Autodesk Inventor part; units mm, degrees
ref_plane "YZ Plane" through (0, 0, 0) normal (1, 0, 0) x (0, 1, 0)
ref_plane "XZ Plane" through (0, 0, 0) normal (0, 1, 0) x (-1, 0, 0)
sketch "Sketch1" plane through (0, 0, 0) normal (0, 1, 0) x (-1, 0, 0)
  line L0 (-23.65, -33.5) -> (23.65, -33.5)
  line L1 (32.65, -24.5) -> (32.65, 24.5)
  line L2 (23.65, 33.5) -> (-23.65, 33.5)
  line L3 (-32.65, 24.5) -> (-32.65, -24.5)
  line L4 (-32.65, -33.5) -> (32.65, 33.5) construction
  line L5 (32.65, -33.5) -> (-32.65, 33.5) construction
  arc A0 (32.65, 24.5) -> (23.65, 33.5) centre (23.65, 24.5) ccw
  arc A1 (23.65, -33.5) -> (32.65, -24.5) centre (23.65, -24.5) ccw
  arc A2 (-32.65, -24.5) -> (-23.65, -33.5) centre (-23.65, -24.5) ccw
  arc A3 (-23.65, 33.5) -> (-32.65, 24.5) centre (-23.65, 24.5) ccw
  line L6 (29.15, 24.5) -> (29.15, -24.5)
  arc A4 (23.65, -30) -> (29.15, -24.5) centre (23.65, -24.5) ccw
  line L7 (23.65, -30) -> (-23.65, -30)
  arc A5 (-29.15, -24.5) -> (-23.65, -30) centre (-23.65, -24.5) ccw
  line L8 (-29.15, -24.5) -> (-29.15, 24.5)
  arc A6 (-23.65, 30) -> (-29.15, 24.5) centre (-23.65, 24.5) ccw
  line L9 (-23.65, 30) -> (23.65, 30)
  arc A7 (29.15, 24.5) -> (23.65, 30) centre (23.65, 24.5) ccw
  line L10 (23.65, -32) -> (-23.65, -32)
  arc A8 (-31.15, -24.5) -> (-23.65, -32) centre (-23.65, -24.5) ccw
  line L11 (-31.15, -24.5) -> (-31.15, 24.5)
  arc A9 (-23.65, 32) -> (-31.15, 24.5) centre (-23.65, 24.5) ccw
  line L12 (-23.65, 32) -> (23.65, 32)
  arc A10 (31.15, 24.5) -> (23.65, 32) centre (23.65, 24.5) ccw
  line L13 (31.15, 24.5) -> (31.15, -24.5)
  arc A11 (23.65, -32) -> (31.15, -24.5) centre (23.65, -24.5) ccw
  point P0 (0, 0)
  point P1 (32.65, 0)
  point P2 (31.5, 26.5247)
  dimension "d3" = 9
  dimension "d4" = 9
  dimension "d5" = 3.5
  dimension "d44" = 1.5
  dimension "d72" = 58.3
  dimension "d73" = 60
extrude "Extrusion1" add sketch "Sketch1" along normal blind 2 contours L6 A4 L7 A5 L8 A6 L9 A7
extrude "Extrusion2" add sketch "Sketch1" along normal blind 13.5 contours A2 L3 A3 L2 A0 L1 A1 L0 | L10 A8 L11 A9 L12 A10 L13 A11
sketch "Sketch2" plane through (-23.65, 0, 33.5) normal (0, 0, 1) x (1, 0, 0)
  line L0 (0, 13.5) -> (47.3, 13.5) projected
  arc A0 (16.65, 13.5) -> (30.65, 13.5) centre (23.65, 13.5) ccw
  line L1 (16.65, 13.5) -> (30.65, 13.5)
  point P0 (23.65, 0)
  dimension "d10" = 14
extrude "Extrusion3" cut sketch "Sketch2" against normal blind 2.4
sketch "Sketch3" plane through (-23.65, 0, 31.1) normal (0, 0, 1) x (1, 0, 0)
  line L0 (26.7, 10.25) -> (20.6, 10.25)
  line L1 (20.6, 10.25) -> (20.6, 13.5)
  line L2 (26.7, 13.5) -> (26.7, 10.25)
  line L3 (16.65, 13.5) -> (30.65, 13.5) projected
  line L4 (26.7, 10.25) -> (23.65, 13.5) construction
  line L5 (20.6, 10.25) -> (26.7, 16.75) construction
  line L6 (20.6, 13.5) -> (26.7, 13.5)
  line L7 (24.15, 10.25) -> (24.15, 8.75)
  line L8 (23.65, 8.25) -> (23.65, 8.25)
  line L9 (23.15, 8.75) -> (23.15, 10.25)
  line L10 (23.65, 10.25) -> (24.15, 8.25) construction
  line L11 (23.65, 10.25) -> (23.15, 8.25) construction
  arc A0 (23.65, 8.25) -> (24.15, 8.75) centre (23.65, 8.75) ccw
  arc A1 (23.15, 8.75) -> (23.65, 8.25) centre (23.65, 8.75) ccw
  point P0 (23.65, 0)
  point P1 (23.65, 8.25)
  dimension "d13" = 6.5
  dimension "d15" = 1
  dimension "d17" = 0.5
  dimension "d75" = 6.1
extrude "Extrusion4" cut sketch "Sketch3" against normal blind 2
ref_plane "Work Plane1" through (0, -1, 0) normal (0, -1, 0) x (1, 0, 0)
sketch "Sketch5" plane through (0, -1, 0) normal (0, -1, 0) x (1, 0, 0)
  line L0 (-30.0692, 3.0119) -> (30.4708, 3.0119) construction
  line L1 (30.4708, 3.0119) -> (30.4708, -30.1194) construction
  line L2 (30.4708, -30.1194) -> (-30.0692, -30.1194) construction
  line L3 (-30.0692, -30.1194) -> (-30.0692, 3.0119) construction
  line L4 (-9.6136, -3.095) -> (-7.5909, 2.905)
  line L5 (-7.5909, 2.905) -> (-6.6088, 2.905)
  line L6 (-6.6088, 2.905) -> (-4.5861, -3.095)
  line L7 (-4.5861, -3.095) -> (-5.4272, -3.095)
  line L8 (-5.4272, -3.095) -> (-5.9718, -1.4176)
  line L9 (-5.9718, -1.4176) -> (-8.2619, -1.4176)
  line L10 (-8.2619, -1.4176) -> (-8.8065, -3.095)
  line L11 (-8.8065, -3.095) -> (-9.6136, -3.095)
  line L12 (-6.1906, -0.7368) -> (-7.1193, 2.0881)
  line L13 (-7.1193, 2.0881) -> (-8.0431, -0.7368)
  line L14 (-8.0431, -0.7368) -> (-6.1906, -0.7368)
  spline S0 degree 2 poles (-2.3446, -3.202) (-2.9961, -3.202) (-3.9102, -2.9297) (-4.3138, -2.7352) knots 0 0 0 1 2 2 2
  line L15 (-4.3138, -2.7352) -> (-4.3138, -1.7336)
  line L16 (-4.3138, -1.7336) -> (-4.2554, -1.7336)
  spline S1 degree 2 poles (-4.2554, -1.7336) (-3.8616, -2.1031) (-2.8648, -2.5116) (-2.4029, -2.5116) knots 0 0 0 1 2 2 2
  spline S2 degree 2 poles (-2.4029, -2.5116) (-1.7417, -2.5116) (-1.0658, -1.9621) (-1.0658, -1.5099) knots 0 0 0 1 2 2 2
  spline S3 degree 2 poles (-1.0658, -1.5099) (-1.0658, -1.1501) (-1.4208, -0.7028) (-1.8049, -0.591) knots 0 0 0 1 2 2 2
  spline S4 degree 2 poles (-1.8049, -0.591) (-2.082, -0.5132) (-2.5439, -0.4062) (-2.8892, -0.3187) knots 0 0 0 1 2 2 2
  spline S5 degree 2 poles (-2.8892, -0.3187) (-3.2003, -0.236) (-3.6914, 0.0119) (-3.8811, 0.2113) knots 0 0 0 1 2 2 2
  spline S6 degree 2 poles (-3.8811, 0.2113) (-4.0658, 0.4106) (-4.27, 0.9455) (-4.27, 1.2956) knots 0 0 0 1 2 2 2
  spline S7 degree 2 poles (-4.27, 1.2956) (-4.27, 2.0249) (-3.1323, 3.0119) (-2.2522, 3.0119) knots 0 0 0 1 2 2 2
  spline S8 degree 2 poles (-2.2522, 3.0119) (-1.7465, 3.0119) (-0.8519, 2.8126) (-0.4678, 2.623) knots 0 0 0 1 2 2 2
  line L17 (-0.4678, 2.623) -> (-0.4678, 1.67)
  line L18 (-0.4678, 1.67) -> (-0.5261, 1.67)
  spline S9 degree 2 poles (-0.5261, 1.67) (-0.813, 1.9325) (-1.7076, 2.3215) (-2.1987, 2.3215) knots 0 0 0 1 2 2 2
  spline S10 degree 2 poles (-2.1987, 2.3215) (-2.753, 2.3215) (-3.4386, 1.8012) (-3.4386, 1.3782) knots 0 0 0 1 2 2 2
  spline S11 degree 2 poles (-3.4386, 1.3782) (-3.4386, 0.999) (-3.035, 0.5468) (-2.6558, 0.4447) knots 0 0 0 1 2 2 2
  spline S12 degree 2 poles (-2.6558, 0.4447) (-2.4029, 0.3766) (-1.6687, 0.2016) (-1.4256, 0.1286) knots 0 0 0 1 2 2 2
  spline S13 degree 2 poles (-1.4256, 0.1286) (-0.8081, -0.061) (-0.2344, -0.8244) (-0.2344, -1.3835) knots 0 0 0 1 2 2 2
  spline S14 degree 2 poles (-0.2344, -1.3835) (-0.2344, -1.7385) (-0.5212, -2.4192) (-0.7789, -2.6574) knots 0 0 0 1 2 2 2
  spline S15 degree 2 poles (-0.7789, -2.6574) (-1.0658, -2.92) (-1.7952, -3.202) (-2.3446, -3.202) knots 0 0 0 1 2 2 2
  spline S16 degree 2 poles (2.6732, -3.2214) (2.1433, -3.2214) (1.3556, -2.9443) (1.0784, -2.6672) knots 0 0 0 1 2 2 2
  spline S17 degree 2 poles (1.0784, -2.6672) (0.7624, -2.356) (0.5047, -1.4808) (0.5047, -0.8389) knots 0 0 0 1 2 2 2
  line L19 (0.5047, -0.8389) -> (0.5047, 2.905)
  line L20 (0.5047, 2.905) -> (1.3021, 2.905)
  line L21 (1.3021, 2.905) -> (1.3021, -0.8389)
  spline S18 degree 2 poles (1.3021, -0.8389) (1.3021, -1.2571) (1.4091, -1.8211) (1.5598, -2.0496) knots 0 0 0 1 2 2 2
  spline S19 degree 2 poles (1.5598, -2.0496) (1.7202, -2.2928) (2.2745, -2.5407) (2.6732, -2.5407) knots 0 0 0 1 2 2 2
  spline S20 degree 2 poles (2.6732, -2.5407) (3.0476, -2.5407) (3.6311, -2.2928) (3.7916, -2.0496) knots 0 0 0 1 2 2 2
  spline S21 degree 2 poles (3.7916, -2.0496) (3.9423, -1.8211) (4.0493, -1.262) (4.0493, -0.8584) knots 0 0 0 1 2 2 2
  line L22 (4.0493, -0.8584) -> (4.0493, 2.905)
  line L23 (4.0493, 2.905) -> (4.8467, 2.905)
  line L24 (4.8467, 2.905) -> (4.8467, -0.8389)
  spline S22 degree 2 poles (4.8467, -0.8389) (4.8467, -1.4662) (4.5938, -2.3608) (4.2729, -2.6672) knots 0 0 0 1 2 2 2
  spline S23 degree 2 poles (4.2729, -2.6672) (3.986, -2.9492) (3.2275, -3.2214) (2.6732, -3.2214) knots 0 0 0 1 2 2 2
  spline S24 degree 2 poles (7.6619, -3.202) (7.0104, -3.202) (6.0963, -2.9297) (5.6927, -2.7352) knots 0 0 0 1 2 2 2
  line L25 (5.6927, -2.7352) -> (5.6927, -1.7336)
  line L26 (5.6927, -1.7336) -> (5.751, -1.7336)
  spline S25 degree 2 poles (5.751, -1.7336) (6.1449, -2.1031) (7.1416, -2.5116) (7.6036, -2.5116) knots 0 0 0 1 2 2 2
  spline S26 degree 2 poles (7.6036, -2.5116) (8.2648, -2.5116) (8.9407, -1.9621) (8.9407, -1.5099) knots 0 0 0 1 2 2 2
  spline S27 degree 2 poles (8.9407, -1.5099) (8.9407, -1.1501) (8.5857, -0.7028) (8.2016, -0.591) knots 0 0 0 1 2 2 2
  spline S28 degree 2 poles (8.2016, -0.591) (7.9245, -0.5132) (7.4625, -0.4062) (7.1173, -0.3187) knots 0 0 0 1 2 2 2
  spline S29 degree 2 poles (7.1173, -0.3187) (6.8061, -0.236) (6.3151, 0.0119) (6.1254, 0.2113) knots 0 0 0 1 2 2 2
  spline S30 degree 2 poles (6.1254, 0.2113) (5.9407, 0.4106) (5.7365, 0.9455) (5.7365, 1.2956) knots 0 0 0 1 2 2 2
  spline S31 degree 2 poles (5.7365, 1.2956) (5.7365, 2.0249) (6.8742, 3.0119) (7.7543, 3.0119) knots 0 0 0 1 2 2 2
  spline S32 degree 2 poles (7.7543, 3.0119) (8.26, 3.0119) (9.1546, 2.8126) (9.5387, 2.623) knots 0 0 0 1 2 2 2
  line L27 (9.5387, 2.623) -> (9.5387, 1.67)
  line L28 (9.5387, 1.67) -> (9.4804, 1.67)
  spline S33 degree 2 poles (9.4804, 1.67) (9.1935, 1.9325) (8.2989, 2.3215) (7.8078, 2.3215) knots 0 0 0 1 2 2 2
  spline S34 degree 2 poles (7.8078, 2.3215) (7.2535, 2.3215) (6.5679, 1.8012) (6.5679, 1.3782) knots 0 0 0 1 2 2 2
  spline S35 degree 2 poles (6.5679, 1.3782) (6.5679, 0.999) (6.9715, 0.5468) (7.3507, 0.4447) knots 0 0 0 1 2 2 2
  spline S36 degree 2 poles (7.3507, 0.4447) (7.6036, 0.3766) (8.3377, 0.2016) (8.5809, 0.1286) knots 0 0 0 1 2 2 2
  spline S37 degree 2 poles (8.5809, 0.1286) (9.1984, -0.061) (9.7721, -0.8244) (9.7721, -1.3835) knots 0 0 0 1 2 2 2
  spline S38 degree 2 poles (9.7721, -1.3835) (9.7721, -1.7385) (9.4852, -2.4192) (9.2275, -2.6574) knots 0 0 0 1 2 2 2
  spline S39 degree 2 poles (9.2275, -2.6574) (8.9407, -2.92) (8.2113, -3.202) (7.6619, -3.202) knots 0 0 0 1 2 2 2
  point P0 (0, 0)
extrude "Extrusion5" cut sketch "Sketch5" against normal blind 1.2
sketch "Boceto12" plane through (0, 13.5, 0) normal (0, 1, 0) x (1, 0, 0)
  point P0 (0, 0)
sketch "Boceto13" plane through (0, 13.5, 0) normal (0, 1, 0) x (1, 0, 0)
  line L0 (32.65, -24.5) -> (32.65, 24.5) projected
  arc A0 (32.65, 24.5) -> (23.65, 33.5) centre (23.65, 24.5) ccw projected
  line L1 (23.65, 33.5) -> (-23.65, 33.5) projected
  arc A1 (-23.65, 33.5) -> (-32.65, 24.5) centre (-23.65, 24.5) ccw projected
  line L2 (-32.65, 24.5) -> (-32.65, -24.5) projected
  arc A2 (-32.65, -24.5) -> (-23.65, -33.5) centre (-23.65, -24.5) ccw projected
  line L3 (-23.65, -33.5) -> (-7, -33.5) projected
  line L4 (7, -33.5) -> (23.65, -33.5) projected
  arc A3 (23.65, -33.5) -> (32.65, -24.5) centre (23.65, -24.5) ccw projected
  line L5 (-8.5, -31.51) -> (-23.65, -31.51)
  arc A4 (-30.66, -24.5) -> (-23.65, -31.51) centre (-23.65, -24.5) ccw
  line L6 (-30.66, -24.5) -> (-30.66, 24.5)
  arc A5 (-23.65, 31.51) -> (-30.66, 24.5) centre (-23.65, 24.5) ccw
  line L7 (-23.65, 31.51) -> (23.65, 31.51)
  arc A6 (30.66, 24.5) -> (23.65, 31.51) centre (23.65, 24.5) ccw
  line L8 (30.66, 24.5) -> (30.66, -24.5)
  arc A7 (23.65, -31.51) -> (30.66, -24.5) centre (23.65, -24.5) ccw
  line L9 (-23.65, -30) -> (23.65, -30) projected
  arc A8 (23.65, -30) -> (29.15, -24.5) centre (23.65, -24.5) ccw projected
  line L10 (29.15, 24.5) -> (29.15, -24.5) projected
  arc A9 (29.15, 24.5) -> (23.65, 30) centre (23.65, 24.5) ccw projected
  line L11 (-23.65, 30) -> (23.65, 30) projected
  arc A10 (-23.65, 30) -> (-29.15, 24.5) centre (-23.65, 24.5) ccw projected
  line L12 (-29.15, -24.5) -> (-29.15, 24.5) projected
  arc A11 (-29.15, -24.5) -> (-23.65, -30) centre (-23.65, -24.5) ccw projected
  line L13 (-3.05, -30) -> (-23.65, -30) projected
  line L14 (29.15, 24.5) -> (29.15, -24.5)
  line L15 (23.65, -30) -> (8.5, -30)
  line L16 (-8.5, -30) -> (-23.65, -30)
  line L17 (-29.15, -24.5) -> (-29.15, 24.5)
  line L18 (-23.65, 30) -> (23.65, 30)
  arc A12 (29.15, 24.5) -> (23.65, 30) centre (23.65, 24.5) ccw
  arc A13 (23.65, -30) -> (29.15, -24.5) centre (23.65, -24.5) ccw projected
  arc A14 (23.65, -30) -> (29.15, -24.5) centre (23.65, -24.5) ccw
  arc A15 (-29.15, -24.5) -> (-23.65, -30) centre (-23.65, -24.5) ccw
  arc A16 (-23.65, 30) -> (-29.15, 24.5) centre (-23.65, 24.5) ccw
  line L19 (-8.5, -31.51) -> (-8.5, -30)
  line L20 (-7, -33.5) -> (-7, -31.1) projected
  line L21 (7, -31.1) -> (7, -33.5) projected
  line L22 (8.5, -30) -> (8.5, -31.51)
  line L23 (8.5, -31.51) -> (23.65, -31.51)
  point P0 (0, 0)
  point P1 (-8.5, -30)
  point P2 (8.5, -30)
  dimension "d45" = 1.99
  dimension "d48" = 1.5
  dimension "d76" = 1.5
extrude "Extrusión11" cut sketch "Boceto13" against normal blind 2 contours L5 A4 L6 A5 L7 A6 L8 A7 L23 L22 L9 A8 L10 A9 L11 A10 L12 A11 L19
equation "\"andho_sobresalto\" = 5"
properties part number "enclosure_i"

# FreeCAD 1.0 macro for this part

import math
import FreeCAD as App
import Part
import Sketcher
from FreeCAD import Vector
Q = App.Units.Quantity


def add_polygon(sketch, points):
    """Adds a closed chain of lines whose ends are joined by coincident constraints."""
    first, n = sketch.GeometryCount, len(points)
    for a, b in zip(points, points[1:] + points[:1]):
        sketch.addGeometry(Part.LineSegment(App.Vector(*a, 0), App.Vector(*b, 0)), False)
    for i in range(n):
        sketch.addConstraint(Sketcher.Constraint("Coincident", first + i, 2, first + (i + 1) % n, 1))

doc = App.newDocument("Part")
params = doc.addObject("Spreadsheet::Sheet", "Params")
for row, (alias, value) in enumerate([
    ("sketch1_radius", "5.5 mm"),
    ("sketch1_height", "49 mm"),
    ("sketch1_width", "47.3 mm"),
    ("pad1_length", "2 mm"),
    ("sketch2_radius", "9 mm"),
    ("sketch2_radius2", "5.5 mm"),
    ("sketch2_height", "49 mm"),
    ("sketch2_width", "47.3 mm"),
    ("pad2_length", "13.5 mm"),
    ("sketch3_radius", "7 mm"),
    ("pocket1_length", "2.4 mm"),
    ("sketch4_radius", "0.5 mm"),
    ("sketch4_width", "6.1 mm"),
    ("sketch4_height", "1.5 mm"),
    ("sketch4_height2", "3.25 mm"),
    ("pocket2_length", "2 mm"),
    ("sketch5_width", "2.29 mm"),
    ("pocket3_length", "1.2 mm"),
    ("sketch6_radius", "5.5 mm"),
    ("sketch6_height", "49 mm"),
    ("sketch6_radius2", "7.01 mm"),
    ("sketch6_width", "47.3 mm"),
    ("pocket4_length", "2 mm"),
], start=1):
    params.set(f"A{row}", alias)
    params.set(f"B{row}", "=" + value)
    params.setAlias(f"B{row}", alias)

body = doc.addObject("PartDesign::Body", "Body")

sketch1 = body.newObject("Sketcher::SketchObject", "Sketch")
sketch1.AttachmentSupport = (doc.getObject("XZ_Plane"), [""])
sketch1.MapMode = "FlatFace"
sketch1.addGeometry([
    Part.LineSegment(Vector(-29.15, -24.5, 0), Vector(-29.15, 24.5, 0)),
    Part.ArcOfCircle(Part.Circle(Vector(-23.65, 24.5, 0), Vector(0, 0, 1), 5.5), math.radians(90), math.radians(180)),
    Part.LineSegment(Vector(-23.65, 30, 0), Vector(23.65, 30, 0)),
    Part.ArcOfCircle(Part.Circle(Vector(23.65, 24.5, 0), Vector(0, 0, 1), 5.5), math.radians(0), math.radians(90)),
    Part.LineSegment(Vector(29.15, 24.5, 0), Vector(29.15, -24.5, 0)),
    Part.ArcOfCircle(Part.Circle(Vector(23.65, -24.5, 0), Vector(0, 0, 1), 5.5), math.radians(-90), math.radians(0)),
    Part.LineSegment(Vector(23.65, -30, 0), Vector(-23.65, -30, 0)),
    Part.ArcOfCircle(Part.Circle(Vector(-23.65, -24.5, 0), Vector(0, 0, 1), 5.5), math.radians(180), math.radians(270)),
], False)
sketch1.addConstraint([
    Sketcher.Constraint("Tangent", 0, 2, 1, 2),
    Sketcher.Constraint("Tangent", 1, 1, 2, 1),
    Sketcher.Constraint("Tangent", 2, 2, 3, 2),
    Sketcher.Constraint("Tangent", 3, 1, 4, 1),
    Sketcher.Constraint("Tangent", 4, 2, 5, 2),
    Sketcher.Constraint("Tangent", 5, 1, 6, 1),
    Sketcher.Constraint("Tangent", 6, 2, 7, 2),
    Sketcher.Constraint("Tangent", 7, 1, 0, 1),
    Sketcher.Constraint("Vertical", 0),
    Sketcher.Constraint("Horizontal", 2),
    Sketcher.Constraint("Vertical", 4),
    Sketcher.Constraint("Horizontal", 6),
    Sketcher.Constraint("Equal", 1, 3),
    Sketcher.Constraint("Equal", 3, 5),
    Sketcher.Constraint("Equal", 5, 7),
    Sketcher.Constraint("Symmetric", 1, 3, 5, 3, -1, 1),
    Sketcher.Constraint("Radius", 1, Q("5.5 mm")),
    Sketcher.Constraint("DistanceY", 0, 1, 0, 2, Q("49 mm")),
    Sketcher.Constraint("DistanceX", 2, 1, 2, 2, Q("47.3 mm")),
])
sketch1.setExpression("Constraints[16]", "Params.sketch1_radius")
sketch1.setExpression("Constraints[17]", "Params.sketch1_height")
sketch1.setExpression("Constraints[18]", "Params.sketch1_width")
pad1 = body.newObject("PartDesign::Pad", "Pad")
pad1.Profile = sketch1
pad1.setExpression("Length", "Params.pad1_length")
pad1.Reversed = True

sketch2 = body.newObject("Sketcher::SketchObject", "Sketch001")
sketch2.AttachmentSupport = (doc.getObject("XZ_Plane"), [""])
sketch2.MapMode = "FlatFace"
sketch2.addGeometry([
    Part.ArcOfCircle(Part.Circle(Vector(23.65, -24.5, 0), Vector(0, 0, 1), 9), math.radians(-90), math.radians(0)),
    Part.LineSegment(Vector(23.65, -33.5, 0), Vector(-23.65, -33.5, 0)),
    Part.ArcOfCircle(Part.Circle(Vector(-23.65, -24.5, 0), Vector(0, 0, 1), 9), math.radians(180), math.radians(270)),
    Part.LineSegment(Vector(-32.65, -24.5, 0), Vector(-32.65, 24.5, 0)),
    Part.ArcOfCircle(Part.Circle(Vector(-23.65, 24.5, 0), Vector(0, 0, 1), 9), math.radians(90), math.radians(180)),
    Part.LineSegment(Vector(-23.65, 33.5, 0), Vector(23.65, 33.5, 0)),
    Part.ArcOfCircle(Part.Circle(Vector(23.65, 24.5, 0), Vector(0, 0, 1), 9), math.radians(0), math.radians(90)),
    Part.LineSegment(Vector(32.65, 24.5, 0), Vector(32.65, -24.5, 0)),
    Part.ArcOfCircle(Part.Circle(Vector(-23.65, 24.5, 0), Vector(0, 0, 1), 5.5), math.radians(90), math.radians(180)),
    Part.LineSegment(Vector(-29.15, 24.5, 0), Vector(-29.15, -24.5, 0)),
    Part.ArcOfCircle(Part.Circle(Vector(-23.65, -24.5, 0), Vector(0, 0, 1), 5.5), math.radians(180), math.radians(270)),
    Part.LineSegment(Vector(-23.65, -30, 0), Vector(23.65, -30, 0)),
    Part.ArcOfCircle(Part.Circle(Vector(23.65, -24.5, 0), Vector(0, 0, 1), 5.5), math.radians(-90), math.radians(0)),
    Part.LineSegment(Vector(29.15, -24.5, 0), Vector(29.15, 24.5, 0)),
    Part.ArcOfCircle(Part.Circle(Vector(23.65, 24.5, 0), Vector(0, 0, 1), 5.5), math.radians(0), math.radians(90)),
    Part.LineSegment(Vector(23.65, 30, 0), Vector(-23.65, 30, 0)),
], False)
sketch2.addConstraint([
    Sketcher.Constraint("Tangent", 0, 1, 1, 1),
    Sketcher.Constraint("Tangent", 1, 2, 2, 2),
    Sketcher.Constraint("Tangent", 2, 1, 3, 1),
    Sketcher.Constraint("Tangent", 3, 2, 4, 2),
    Sketcher.Constraint("Tangent", 4, 1, 5, 1),
    Sketcher.Constraint("Tangent", 5, 2, 6, 2),
    Sketcher.Constraint("Tangent", 6, 1, 7, 1),
    Sketcher.Constraint("Tangent", 7, 2, 0, 2),
    Sketcher.Constraint("Tangent", 8, 2, 9, 1),
    Sketcher.Constraint("Tangent", 9, 2, 10, 1),
    Sketcher.Constraint("Tangent", 10, 2, 11, 1),
    Sketcher.Constraint("Tangent", 11, 2, 12, 1),
    Sketcher.Constraint("Tangent", 12, 2, 13, 1),
    Sketcher.Constraint("Tangent", 13, 2, 14, 1),
    Sketcher.Constraint("Tangent", 14, 2, 15, 1),
    Sketcher.Constraint("Tangent", 15, 2, 8, 1),
    Sketcher.Constraint("Horizontal", 1),
    Sketcher.Constraint("Vertical", 3),
    Sketcher.Constraint("Horizontal", 5),
    Sketcher.Constraint("Vertical", 7),
    Sketcher.Constraint("Vertical", 9),
    Sketcher.Constraint("Horizontal", 11),
    Sketcher.Constraint("Vertical", 13),
    Sketcher.Constraint("Horizontal", 15),
    Sketcher.Constraint("Coincident", 8, 3, 4, 3),
    Sketcher.Constraint("Coincident", 10, 3, 2, 3),
    Sketcher.Constraint("Coincident", 12, 3, 0, 3),
    Sketcher.Constraint("Equal", 0, 2),
    Sketcher.Constraint("Equal", 2, 4),
    Sketcher.Constraint("Equal", 4, 6),
    Sketcher.Constraint("Equal", 12, 14),
    Sketcher.Constraint("Symmetric", 0, 3, 4, 3, -1, 1),
    Sketcher.Constraint("Radius", 0, Q("9 mm")),
    Sketcher.Constraint("Radius", 8, Q("5.5 mm")),
    Sketcher.Constraint("DistanceY", 3, 1, 3, 2, Q("49 mm")),
    Sketcher.Constraint("DistanceX", 1, 2, 1, 1, Q("47.3 mm")),
])
sketch2.setExpression("Constraints[32]", "Params.sketch2_radius")
sketch2.setExpression("Constraints[33]", "Params.sketch2_radius2")
sketch2.setExpression("Constraints[34]", "Params.sketch2_height")
sketch2.setExpression("Constraints[35]", "Params.sketch2_width")
pad2 = body.newObject("PartDesign::Pad", "Pad001")
pad2.Profile = sketch2
pad2.setExpression("Length", "Params.pad2_length")
pad2.Reversed = True

sketch3 = body.newObject("Sketcher::SketchObject", "Sketch002")
sketch3.AttachmentSupport = (doc.getObject("XY_Plane"), [""])
sketch3.MapMode = "FlatFace"
sketch3.AttachmentOffset = App.Placement(Vector(0, 0, 33.5), App.Rotation())
sketch3.addGeometry([
    Part.LineSegment(Vector(7, 13.5, 0), Vector(-7, 13.5, 0)),
    Part.ArcOfCircle(Part.Circle(Vector(0, 13.5, 0), Vector(0, 0, 1), 7), math.radians(180), math.radians(360)),
], False)
sketch3.addConstraint([
    Sketcher.Constraint("Coincident", 0, 1, 1, 2),
    Sketcher.Constraint("Coincident", 1, 1, 0, 2),
    Sketcher.Constraint("Horizontal", 0),
    Sketcher.Constraint("PointOnObject", 1, 3, -2),
    Sketcher.Constraint("Horizontal", 1, 3, 0, 1),
    Sketcher.Constraint("Radius", 1, Q("7 mm")),
    Sketcher.Constraint("DistanceY", -1, 1, 1, 3, Q("13.5 mm")),
])
sketch3.setExpression("Constraints[5]", "Params.sketch3_radius")
pocket1 = body.newObject("PartDesign::Pocket", "Pocket")
pocket1.Profile = sketch3
pocket1.setExpression("Length", "Params.pocket1_length")

sketch4 = body.newObject("Sketcher::SketchObject", "Sketch003")
sketch4.AttachmentSupport = (doc.getObject("XY_Plane"), [""])
sketch4.MapMode = "FlatFace"
sketch4.AttachmentOffset = App.Placement(Vector(0, 0, 31.1), App.Rotation())
sketch4.addGeometry([
    Part.LineSegment(Vector(0.5, 10.25, 0), Vector(3.05, 10.25, 0)),
    Part.LineSegment(Vector(3.05, 10.25, 0), Vector(3.05, 13.5, 0)),
    Part.LineSegment(Vector(3.05, 13.5, 0), Vector(-3.05, 13.5, 0)),
    Part.LineSegment(Vector(-3.05, 13.5, 0), Vector(-3.05, 10.25, 0)),
    Part.LineSegment(Vector(-3.05, 10.25, 0), Vector(-0.5, 10.25, 0)),
    Part.LineSegment(Vector(-0.5, 10.25, 0), Vector(-0.5, 8.75, 0)),
    Part.ArcOfCircle(Part.Circle(Vector(0, 8.75, 0), Vector(0, 0, 1), 0.5), math.radians(180), math.radians(360)),
    Part.LineSegment(Vector(0.5, 8.75, 0), Vector(0.5, 10.25, 0)),
], False)
sketch4.addConstraint([
    Sketcher.Constraint("Coincident", 0, 2, 1, 1),
    Sketcher.Constraint("Coincident", 1, 2, 2, 1),
    Sketcher.Constraint("Coincident", 2, 2, 3, 1),
    Sketcher.Constraint("Coincident", 3, 2, 4, 1),
    Sketcher.Constraint("Coincident", 4, 2, 5, 1),
    Sketcher.Constraint("Tangent", 5, 2, 6, 1),
    Sketcher.Constraint("Tangent", 6, 2, 7, 1),
    Sketcher.Constraint("Coincident", 7, 2, 0, 1),
    Sketcher.Constraint("Horizontal", 0),
    Sketcher.Constraint("Vertical", 1),
    Sketcher.Constraint("Horizontal", 2),
    Sketcher.Constraint("Vertical", 3),
    Sketcher.Constraint("Horizontal", 4),
    Sketcher.Constraint("Vertical", 5),
    Sketcher.Constraint("Vertical", 7),
    Sketcher.Constraint("Symmetric", 0, 2, 3, 2, -2),
    Sketcher.Constraint("PointOnObject", 6, 3, -2),
    Sketcher.Constraint("Radius", 6, Q("0.5 mm")),
    Sketcher.Constraint("DistanceX", 2, 2, 2, 1, Q("6.1 mm")),
    Sketcher.Constraint("DistanceY", 5, 2, 5, 1, Q("1.5 mm")),
    Sketcher.Constraint("DistanceY", 1, 1, 1, 2, Q("3.25 mm")),
    Sketcher.Constraint("DistanceY", -1, 1, 1, 2, Q("13.5 mm")),
])
sketch4.setExpression("Constraints[17]", "Params.sketch4_radius")
sketch4.setExpression("Constraints[18]", "Params.sketch4_width")
sketch4.setExpression("Constraints[19]", "Params.sketch4_height")
sketch4.setExpression("Constraints[20]", "Params.sketch4_height2")
pocket2 = body.newObject("PartDesign::Pocket", "Pocket001")
pocket2.Profile = sketch4
pocket2.setExpression("Length", "Params.pocket2_length")

sketch5 = body.newObject("Sketcher::SketchObject", "Sketch004")
sketch5.AttachmentSupport = (doc.getObject("XZ_Plane"), [""])
sketch5.MapMode = "FlatFace"
sketch5.AttachmentOffset = App.Placement(Vector(0, 0, 1), App.Rotation())
add_polygon(sketch5, [(-7.5909, 2.905), (-9.6136, -3.095), (-8.8065, -3.095), (-8.2619, -1.4176), (-5.9718, -1.4176), (-5.4272, -3.095), (-4.5861, -3.095), (-6.6088, 2.905)])
add_polygon(sketch5, [(-7.1193, 2.0881), (-6.1906, -0.7368), (-8.0431, -0.7368)])
sketch5.addGeometry(Part.BSplineCurve([Vector(-2.3446, -3.202, 0), Vector(-2.9961, -3.202, 0), Vector(-3.9102, -2.9297, 0), Vector(-4.3138, -2.7352, 0)], [3, 1, 3], [0, 1, 2], False, 2, [1, 1, 1, 1], False), False)
sketch5.addGeometry(Part.BSplineCurve([Vector(-0.7789, -2.6574, 0), Vector(-1.0658, -2.92, 0), Vector(-1.7952, -3.202, 0), Vector(-2.3446, -3.202, 0)], [3, 1, 3], [0, 1, 2], False, 2, [1, 1, 1, 1], False), False)
sketch5.addGeometry(Part.BSplineCurve([Vector(-0.2344, -1.3835, 0), Vector(-0.2344, -1.7385, 0), Vector(-0.5212, -2.4192, 0), Vector(-0.7789, -2.6574, 0)], [3, 1, 3], [0, 1, 2], False, 2, [1, 1, 1, 1], False), False)
sketch5.addGeometry(Part.BSplineCurve([Vector(-1.4256, 0.1286, 0), Vector(-0.8081, -0.061, 0), Vector(-0.2344, -0.8244, 0), Vector(-0.2344, -1.3835, 0)], [3, 1, 3], [0, 1, 2], False, 2, [1, 1, 1, 1], False), False)
sketch5.addGeometry(Part.BSplineCurve([Vector(-2.6558, 0.4447, 0), Vector(-2.4029, 0.3766, 0), Vector(-1.6687, 0.2016, 0), Vector(-1.4256, 0.1286, 0)], [3, 1, 3], [0, 1, 2], False, 2, [1, 1, 1, 1], False), False)
sketch5.addGeometry(Part.BSplineCurve([Vector(-3.4386, 1.3782, 0), Vector(-3.4386, 0.999, 0), Vector(-3.035, 0.5468, 0), Vector(-2.6558, 0.4447, 0)], [3, 1, 3], [0, 1, 2], False, 2, [1, 1, 1, 1], False), False)
sketch5.addGeometry(Part.BSplineCurve([Vector(-2.1987, 2.3215, 0), Vector(-2.753, 2.3215, 0), Vector(-3.4386, 1.8012, 0), Vector(-3.4386, 1.3782, 0)], [3, 1, 3], [0, 1, 2], False, 2, [1, 1, 1, 1], False), False)
sketch5.addGeometry(Part.BSplineCurve([Vector(-0.5261, 1.67, 0), Vector(-0.813, 1.9325, 0), Vector(-1.7076, 2.3215, 0), Vector(-2.1987, 2.3215, 0)], [3, 1, 3], [0, 1, 2], False, 2, [1, 1, 1, 1], False), False)
sketch5.addGeometry(Part.LineSegment(Vector(-0.5261, 1.67, 0), Vector(-0.4678, 1.67, 0)), False)
sketch5.addGeometry(Part.LineSegment(Vector(-0.4678, 1.67, 0), Vector(-0.4678, 2.623, 0)), False)
sketch5.addGeometry(Part.BSplineCurve([Vector(-2.2522, 3.0119, 0), Vector(-1.7465, 3.0119, 0), Vector(-0.8519, 2.8126, 0), Vector(-0.4678, 2.623, 0)], [3, 1, 3], [0, 1, 2], False, 2, [1, 1, 1, 1], False), False)
sketch5.addGeometry(Part.BSplineCurve([Vector(-4.27, 1.2956, 0), Vector(-4.27, 2.0249, 0), Vector(-3.1323, 3.0119, 0), Vector(-2.2522, 3.0119, 0)], [3, 1, 3], [0, 1, 2], False, 2, [1, 1, 1, 1], False), False)
sketch5.addGeometry(Part.BSplineCurve([Vector(-3.8811, 0.2113, 0), Vector(-4.0658, 0.4106, 0), Vector(-4.27, 0.9455, 0), Vector(-4.27, 1.2956, 0)], [3, 1, 3], [0, 1, 2], False, 2, [1, 1, 1, 1], False), False)
sketch5.addGeometry(Part.BSplineCurve([Vector(-2.8892, -0.3187, 0), Vector(-3.2003, -0.236, 0), Vector(-3.6914, 0.0119, 0), Vector(-3.8811, 0.2113, 0)], [3, 1, 3], [0, 1, 2], False, 2, [1, 1, 1, 1], False), False)
sketch5.addGeometry(Part.BSplineCurve([Vector(-1.8049, -0.591, 0), Vector(-2.082, -0.5132, 0), Vector(-2.5439, -0.4062, 0), Vector(-2.8892, -0.3187, 0)], [3, 1, 3], [0, 1, 2], False, 2, [1, 1, 1, 1], False), False)
sketch5.addGeometry(Part.BSplineCurve([Vector(-1.0658, -1.5099, 0), Vector(-1.0658, -1.1501, 0), Vector(-1.4208, -0.7028, 0), Vector(-1.8049, -0.591, 0)], [3, 1, 3], [0, 1, 2], False, 2, [1, 1, 1, 1], False), False)
sketch5.addGeometry(Part.BSplineCurve([Vector(-2.4029, -2.5116, 0), Vector(-1.7417, -2.5116, 0), Vector(-1.0658, -1.9621, 0), Vector(-1.0658, -1.5099, 0)], [3, 1, 3], [0, 1, 2], False, 2, [1, 1, 1, 1], False), False)
sketch5.addGeometry(Part.BSplineCurve([Vector(-4.2554, -1.7336, 0), Vector(-3.8616, -2.1031, 0), Vector(-2.8648, -2.5116, 0), Vector(-2.4029, -2.5116, 0)], [3, 1, 3], [0, 1, 2], False, 2, [1, 1, 1, 1], False), False)
sketch5.addGeometry(Part.LineSegment(Vector(-4.2554, -1.7336, 0), Vector(-4.3138, -1.7336, 0)), False)
sketch5.addGeometry(Part.LineSegment(Vector(-4.3138, -1.7336, 0), Vector(-4.3138, -2.7352, 0)), False)
sketch5.addGeometry(Part.BSplineCurve([Vector(2.6732, -3.2214, 0), Vector(2.1433, -3.2214, 0), Vector(1.3556, -2.9443, 0), Vector(1.0784, -2.6672, 0)], [3, 1, 3], [0, 1, 2], False, 2, [1, 1, 1, 1], False), False)
sketch5.addGeometry(Part.BSplineCurve([Vector(4.2729, -2.6672, 0), Vector(3.986, -2.9492, 0), Vector(3.2275, -3.2214, 0), Vector(2.6732, -3.2214, 0)], [3, 1, 3], [0, 1, 2], False, 2, [1, 1, 1, 1], False), False)
sketch5.addGeometry(Part.BSplineCurve([Vector(4.8467, -0.8389, 0), Vector(4.8467, -1.4662, 0), Vector(4.5938, -2.3608, 0), Vector(4.2729, -2.6672, 0)], [3, 1, 3], [0, 1, 2], False, 2, [1, 1, 1, 1], False), False)
sketch5.addGeometry(Part.LineSegment(Vector(4.8467, -0.8389, 0), Vector(4.8467, 2.905, 0)), False)
sketch5.addGeometry(Part.LineSegment(Vector(4.8467, 2.905, 0), Vector(4.0493, 2.905, 0)), False)
sketch5.addGeometry(Part.LineSegment(Vector(4.0493, 2.905, 0), Vector(4.0493, -0.8584, 0)), False)
sketch5.addGeometry(Part.BSplineCurve([Vector(3.7916, -2.0496, 0), Vector(3.9423, -1.8211, 0), Vector(4.0493, -1.262, 0), Vector(4.0493, -0.8584, 0)], [3, 1, 3], [0, 1, 2], False, 2, [1, 1, 1, 1], False), False)
sketch5.addGeometry(Part.BSplineCurve([Vector(2.6732, -2.5407, 0), Vector(3.0476, -2.5407, 0), Vector(3.6311, -2.2928, 0), Vector(3.7916, -2.0496, 0)], [3, 1, 3], [0, 1, 2], False, 2, [1, 1, 1, 1], False), False)
sketch5.addGeometry(Part.BSplineCurve([Vector(1.5598, -2.0496, 0), Vector(1.7202, -2.2928, 0), Vector(2.2745, -2.5407, 0), Vector(2.6732, -2.5407, 0)], [3, 1, 3], [0, 1, 2], False, 2, [1, 1, 1, 1], False), False)
sketch5.addGeometry(Part.BSplineCurve([Vector(1.3021, -0.8389, 0), Vector(1.3021, -1.2571, 0), Vector(1.4091, -1.8211, 0), Vector(1.5598, -2.0496, 0)], [3, 1, 3], [0, 1, 2], False, 2, [1, 1, 1, 1], False), False)
sketch5.addGeometry(Part.LineSegment(Vector(1.3021, -0.8389, 0), Vector(1.3021, 2.905, 0)), False)
sketch5.addGeometry(Part.LineSegment(Vector(1.3021, 2.905, 0), Vector(0.5047, 2.905, 0)), False)
sketch5.addGeometry(Part.LineSegment(Vector(0.5047, 2.905, 0), Vector(0.5047, -0.8389, 0)), False)
sketch5.addGeometry(Part.BSplineCurve([Vector(1.0784, -2.6672, 0), Vector(0.7624, -2.356, 0), Vector(0.5047, -1.4808, 0), Vector(0.5047, -0.8389, 0)], [3, 1, 3], [0, 1, 2], False, 2, [1, 1, 1, 1], False), False)
sketch5.addGeometry(Part.BSplineCurve([Vector(7.6619, -3.202, 0), Vector(7.0104, -3.202, 0), Vector(6.0963, -2.9297, 0), Vector(5.6927, -2.7352, 0)], [3, 1, 3], [0, 1, 2], False, 2, [1, 1, 1, 1], False), False)
sketch5.addGeometry(Part.BSplineCurve([Vector(9.2275, -2.6574, 0), Vector(8.9407, -2.92, 0), Vector(8.2113, -3.202, 0), Vector(7.6619, -3.202, 0)], [3, 1, 3], [0, 1, 2], False, 2, [1, 1, 1, 1], False), False)
sketch5.addGeometry(Part.BSplineCurve([Vector(9.7721, -1.3835, 0), Vector(9.7721, -1.7385, 0), Vector(9.4852, -2.4192, 0), Vector(9.2275, -2.6574, 0)], [3, 1, 3], [0, 1, 2], False, 2, [1, 1, 1, 1], False), False)
sketch5.addGeometry(Part.BSplineCurve([Vector(8.5809, 0.1286, 0), Vector(9.1984, -0.061, 0), Vector(9.7721, -0.8244, 0), Vector(9.7721, -1.3835, 0)], [3, 1, 3], [0, 1, 2], False, 2, [1, 1, 1, 1], False), False)
sketch5.addGeometry(Part.BSplineCurve([Vector(7.3507, 0.4447, 0), Vector(7.6036, 0.3766, 0), Vector(8.3377, 0.2016, 0), Vector(8.5809, 0.1286, 0)], [3, 1, 3], [0, 1, 2], False, 2, [1, 1, 1, 1], False), False)
sketch5.addGeometry(Part.BSplineCurve([Vector(6.5679, 1.3782, 0), Vector(6.5679, 0.999, 0), Vector(6.9715, 0.5468, 0), Vector(7.3507, 0.4447, 0)], [3, 1, 3], [0, 1, 2], False, 2, [1, 1, 1, 1], False), False)
sketch5.addGeometry(Part.BSplineCurve([Vector(7.8078, 2.3215, 0), Vector(7.2535, 2.3215, 0), Vector(6.5679, 1.8012, 0), Vector(6.5679, 1.3782, 0)], [3, 1, 3], [0, 1, 2], False, 2, [1, 1, 1, 1], False), False)
sketch5.addGeometry(Part.BSplineCurve([Vector(9.4804, 1.67, 0), Vector(9.1935, 1.9325, 0), Vector(8.2989, 2.3215, 0), Vector(7.8078, 2.3215, 0)], [3, 1, 3], [0, 1, 2], False, 2, [1, 1, 1, 1], False), False)
sketch5.addGeometry(Part.LineSegment(Vector(9.4804, 1.67, 0), Vector(9.5387, 1.67, 0)), False)
sketch5.addGeometry(Part.LineSegment(Vector(9.5387, 1.67, 0), Vector(9.5387, 2.623, 0)), False)
sketch5.addGeometry(Part.BSplineCurve([Vector(7.7543, 3.0119, 0), Vector(8.26, 3.0119, 0), Vector(9.1546, 2.8126, 0), Vector(9.5387, 2.623, 0)], [3, 1, 3], [0, 1, 2], False, 2, [1, 1, 1, 1], False), False)
sketch5.addGeometry(Part.BSplineCurve([Vector(5.7365, 1.2956, 0), Vector(5.7365, 2.0249, 0), Vector(6.8742, 3.0119, 0), Vector(7.7543, 3.0119, 0)], [3, 1, 3], [0, 1, 2], False, 2, [1, 1, 1, 1], False), False)
sketch5.addGeometry(Part.BSplineCurve([Vector(6.1254, 0.2113, 0), Vector(5.9407, 0.4106, 0), Vector(5.7365, 0.9455, 0), Vector(5.7365, 1.2956, 0)], [3, 1, 3], [0, 1, 2], False, 2, [1, 1, 1, 1], False), False)
sketch5.addGeometry(Part.BSplineCurve([Vector(7.1173, -0.3187, 0), Vector(6.8061, -0.236, 0), Vector(6.3151, 0.0119, 0), Vector(6.1254, 0.2113, 0)], [3, 1, 3], [0, 1, 2], False, 2, [1, 1, 1, 1], False), False)
sketch5.addGeometry(Part.BSplineCurve([Vector(8.2016, -0.591, 0), Vector(7.9245, -0.5132, 0), Vector(7.4625, -0.4062, 0), Vector(7.1173, -0.3187, 0)], [3, 1, 3], [0, 1, 2], False, 2, [1, 1, 1, 1], False), False)
sketch5.addGeometry(Part.BSplineCurve([Vector(8.9407, -1.5099, 0), Vector(8.9407, -1.1501, 0), Vector(8.5857, -0.7028, 0), Vector(8.2016, -0.591, 0)], [3, 1, 3], [0, 1, 2], False, 2, [1, 1, 1, 1], False), False)
sketch5.addGeometry(Part.BSplineCurve([Vector(7.6036, -2.5116, 0), Vector(8.2648, -2.5116, 0), Vector(8.9407, -1.9621, 0), Vector(8.9407, -1.5099, 0)], [3, 1, 3], [0, 1, 2], False, 2, [1, 1, 1, 1], False), False)
sketch5.addGeometry(Part.BSplineCurve([Vector(5.751, -1.7336, 0), Vector(6.1449, -2.1031, 0), Vector(7.1416, -2.5116, 0), Vector(7.6036, -2.5116, 0)], [3, 1, 3], [0, 1, 2], False, 2, [1, 1, 1, 1], False), False)
sketch5.addGeometry(Part.LineSegment(Vector(5.751, -1.7336, 0), Vector(5.6927, -1.7336, 0)), False)
sketch5.addGeometry(Part.LineSegment(Vector(5.6927, -1.7336, 0), Vector(5.6927, -2.7352, 0)), False)
sketch5.addConstraint([
    Sketcher.Constraint("Block", 11),
    Sketcher.Constraint("Block", 12),
    Sketcher.Constraint("Block", 13),
    Sketcher.Constraint("Block", 14),
    Sketcher.Constraint("Block", 15),
    Sketcher.Constraint("Block", 16),
    Sketcher.Constraint("Block", 17),
    Sketcher.Constraint("Block", 18),
    Sketcher.Constraint("Block", 21),
    Sketcher.Constraint("Block", 22),
    Sketcher.Constraint("Block", 23),
    Sketcher.Constraint("Block", 24),
    Sketcher.Constraint("Block", 25),
    Sketcher.Constraint("Block", 26),
    Sketcher.Constraint("Block", 27),
    Sketcher.Constraint("Block", 28),
    Sketcher.Constraint("Block", 31),
    Sketcher.Constraint("Block", 32),
    Sketcher.Constraint("Block", 33),
    Sketcher.Constraint("Block", 37),
    Sketcher.Constraint("Block", 38),
    Sketcher.Constraint("Block", 39),
    Sketcher.Constraint("Block", 40),
    Sketcher.Constraint("Block", 44),
    Sketcher.Constraint("Block", 45),
    Sketcher.Constraint("Block", 46),
    Sketcher.Constraint("Block", 47),
    Sketcher.Constraint("Block", 48),
    Sketcher.Constraint("Block", 49),
    Sketcher.Constraint("Block", 50),
    Sketcher.Constraint("Block", 51),
    Sketcher.Constraint("Block", 52),
    Sketcher.Constraint("Block", 55),
    Sketcher.Constraint("Block", 56),
    Sketcher.Constraint("Block", 57),
    Sketcher.Constraint("Block", 58),
    Sketcher.Constraint("Block", 59),
    Sketcher.Constraint("Block", 60),
    Sketcher.Constraint("Block", 61),
    Sketcher.Constraint("Block", 62),
    Sketcher.Constraint("Coincident", 18, 1, 19, 1),
    Sketcher.Constraint("Coincident", 19, 2, 20, 1),
    Sketcher.Constraint("Coincident", 20, 2, 21, 2),
    Sketcher.Constraint("Coincident", 28, 1, 29, 1),
    Sketcher.Constraint("Coincident", 29, 2, 30, 1),
    Sketcher.Constraint("Coincident", 30, 2, 11, 2),
    Sketcher.Constraint("Coincident", 33, 1, 34, 1),
    Sketcher.Constraint("Coincident", 34, 2, 35, 1),
    Sketcher.Constraint("Coincident", 35, 2, 36, 1),
    Sketcher.Constraint("Coincident", 36, 2, 37, 2),
    Sketcher.Constraint("Coincident", 40, 1, 41, 1),
    Sketcher.Constraint("Coincident", 41, 2, 42, 1),
    Sketcher.Constraint("Coincident", 42, 2, 43, 1),
    Sketcher.Constraint("Coincident", 43, 2, 44, 2),
    Sketcher.Constraint("Coincident", 52, 1, 53, 1),
    Sketcher.Constraint("Coincident", 53, 2, 54, 1),
    Sketcher.Constraint("Coincident", 54, 2, 55, 2),
    Sketcher.Constraint("Coincident", 62, 1, 63, 1),
    Sketcher.Constraint("Coincident", 63, 2, 64, 1),
    Sketcher.Constraint("Coincident", 64, 2, 45, 2),
    Sketcher.Constraint("Horizontal", 1),
    Sketcher.Constraint("Horizontal", 3),
    Sketcher.Constraint("Horizontal", 5),
    Sketcher.Constraint("Horizontal", 7),
    Sketcher.Constraint("Horizontal", 9),
    Sketcher.Constraint("Horizontal", 19),
    Sketcher.Constraint("Vertical", 20),
    Sketcher.Constraint("Horizontal", 29),
    Sketcher.Constraint("Vertical", 30),
    Sketcher.Constraint("Vertical", 34),
    Sketcher.Constraint("Horizontal", 35),
    Sketcher.Constraint("Vertical", 36),
    Sketcher.Constraint("Vertical", 41),
    Sketcher.Constraint("Horizontal", 42),
    Sketcher.Constraint("Vertical", 43),
    Sketcher.Constraint("Horizontal", 53),
    Sketcher.Constraint("Vertical", 54),
    Sketcher.Constraint("Horizontal", 63),
    Sketcher.Constraint("Vertical", 64),
    Sketcher.Constraint("Horizontal", 1, 2, 4, 2),
    Sketcher.Constraint("Horizontal", 7, 2, 34, 2),
    Sketcher.Constraint("Horizontal", 35, 2, 41, 2),
    Sketcher.Constraint("Equal", 2, 4),
    Sketcher.Constraint("Equal", 0, 6),
    Sketcher.Constraint("DistanceY", 4, 2, 6, 2, Q("6 mm")),
    Sketcher.Constraint("DistanceX", 3, 1, 3, 2, Q("2.29 mm")),
    Sketcher.Constraint("Angle", 0, Q("-108.6298 deg")),
    Sketcher.Constraint("Angle", 10, Q("71.8912 deg")),
    Sketcher.Constraint("DistanceX", 1, 1, 1, 2, Q("0.807 mm")),
    Sketcher.Constraint("DistanceX", 5, 1, 5, 2, Q("0.841 mm")),
    Sketcher.Constraint("DistanceX", 7, 2, 7, 1, Q("0.982 mm")),
    Sketcher.Constraint("DistanceY", 34, 1, 34, 2, Q("3.744 mm")),
    Sketcher.Constraint("Distance", 10, Q("2.972 mm")),
    Sketcher.Constraint("DistanceX", 9, 2, 9, 1, Q("1.8525 mm")),
    Sketcher.Constraint("DistanceX", 2, 2, -1, 1, Q("8.262 mm")),
    Sketcher.Constraint("DistanceX", 9, 2, -1, 1, Q("8.043 mm")),
    Sketcher.Constraint("DistanceY", -1, 1, 10, 2, Q("2.088 mm")),
    Sketcher.Constraint("DistanceY", 29, 2, 3, 2, Q("0.316 mm")),
])
sketch5.setExpression("Constraints[96]", "Params.sketch5_width")
pocket3 = body.newObject("PartDesign::Pocket", "Pocket002")
pocket3.Profile = sketch5
pocket3.setExpression("Length", "Params.pocket3_length")

sketch6 = body.newObject("Sketcher::SketchObject", "Sketch005")
sketch6.AttachmentSupport = (doc.getObject("XZ_Plane"), [""])
sketch6.MapMode = "FlatFace"
sketch6.AttachmentOffset = App.Placement(Vector(0, 0, -13.5), App.Rotation())
sketch6.addGeometry([
    Part.LineSegment(Vector(-23.65, 31.51, 0), Vector(-8.5, 31.51, 0)),
    Part.LineSegment(Vector(-8.5, 31.51, 0), Vector(-8.5, 30, 0)),
    Part.LineSegment(Vector(-8.5, 30, 0), Vector(-23.65, 30, 0)),
    Part.ArcOfCircle(Part.Circle(Vector(-23.65, 24.5, 0), Vector(0, 0, 1), 5.5), math.radians(90), math.radians(180)),
    Part.LineSegment(Vector(-29.15, 24.5, 0), Vector(-29.15, -24.5, 0)),
    Part.ArcOfCircle(Part.Circle(Vector(-23.65, -24.5, 0), Vector(0, 0, 1), 5.5), math.radians(180), math.radians(270)),
    Part.LineSegment(Vector(-23.65, -30, 0), Vector(23.65, -30, 0)),
    Part.ArcOfCircle(Part.Circle(Vector(23.65, -24.5, 0), Vector(0, 0, 1), 5.5), math.radians(-90), math.radians(0)),
    Part.LineSegment(Vector(29.15, -24.5, 0), Vector(29.15, 24.5, 0)),
    Part.ArcOfCircle(Part.Circle(Vector(23.65, 24.5, 0), Vector(0, 0, 1), 5.5), math.radians(0), math.radians(90)),
    Part.LineSegment(Vector(23.65, 30, 0), Vector(8.5, 30, 0)),
    Part.LineSegment(Vector(8.5, 30, 0), Vector(8.5, 31.51, 0)),
    Part.LineSegment(Vector(8.5, 31.51, 0), Vector(23.65, 31.51, 0)),
    Part.ArcOfCircle(Part.Circle(Vector(23.65, 24.5, 0), Vector(0, 0, 1), 7.01), math.radians(0), math.radians(90)),
    Part.LineSegment(Vector(30.66, 24.5, 0), Vector(30.66, -24.5, 0)),
    Part.ArcOfCircle(Part.Circle(Vector(23.65, -24.5, 0), Vector(0, 0, 1), 7.01), math.radians(-90), math.radians(0)),
    Part.LineSegment(Vector(23.65, -31.51, 0), Vector(-23.65, -31.51, 0)),
    Part.ArcOfCircle(Part.Circle(Vector(-23.65, -24.5, 0), Vector(0, 0, 1), 7.01), math.radians(180), math.radians(270)),
    Part.LineSegment(Vector(-30.66, -24.5, 0), Vector(-30.66, 24.5, 0)),
    Part.ArcOfCircle(Part.Circle(Vector(-23.65, 24.5, 0), Vector(0, 0, 1), 7.01), math.radians(90), math.radians(180)),
], False)
sketch6.addConstraint([
    Sketcher.Constraint("Coincident", 0, 2, 1, 1),
    Sketcher.Constraint("Coincident", 1, 2, 2, 1),
    Sketcher.Constraint("Tangent", 2, 2, 3, 1),
    Sketcher.Constraint("Tangent", 3, 2, 4, 1),
    Sketcher.Constraint("Tangent", 4, 2, 5, 1),
    Sketcher.Constraint("Tangent", 5, 2, 6, 1),
    Sketcher.Constraint("Tangent", 6, 2, 7, 1),
    Sketcher.Constraint("Tangent", 7, 2, 8, 1),
    Sketcher.Constraint("Tangent", 8, 2, 9, 1),
    Sketcher.Constraint("Tangent", 9, 2, 10, 1),
    Sketcher.Constraint("Coincident", 10, 2, 11, 1),
    Sketcher.Constraint("Coincident", 11, 2, 12, 1),
    Sketcher.Constraint("Tangent", 12, 2, 13, 2),
    Sketcher.Constraint("Tangent", 13, 1, 14, 1),
    Sketcher.Constraint("Tangent", 14, 2, 15, 2),
    Sketcher.Constraint("Tangent", 15, 1, 16, 1),
    Sketcher.Constraint("Tangent", 16, 2, 17, 2),
    Sketcher.Constraint("Tangent", 17, 1, 18, 1),
    Sketcher.Constraint("Tangent", 18, 2, 19, 2),
    Sketcher.Constraint("Tangent", 19, 1, 0, 1),
    Sketcher.Constraint("Horizontal", 0),
    Sketcher.Constraint("Vertical", 1),
    Sketcher.Constraint("Horizontal", 2),
    Sketcher.Constraint("Vertical", 4),
    Sketcher.Constraint("Horizontal", 6),
    Sketcher.Constraint("Vertical", 8),
    Sketcher.Constraint("Horizontal", 10),
    Sketcher.Constraint("Vertical", 11),
    Sketcher.Constraint("Horizontal", 12),
    Sketcher.Constraint("Vertical", 14),
    Sketcher.Constraint("Horizontal", 16),
    Sketcher.Constraint("Vertical", 18),
    Sketcher.Constraint("Coincident", 13, 3, 9, 3),
    Sketcher.Constraint("Coincident", 15, 3, 7, 3),
    Sketcher.Constraint("Coincident", 17, 3, 5, 3),
    Sketcher.Constraint("Coincident", 19, 3, 3, 3),
    Sketcher.Constraint("Equal", 3, 5),
    Sketcher.Constraint("Equal", 5, 7),
    Sketcher.Constraint("Equal", 7, 9),
    Sketcher.Constraint("Symmetric", 3, 3, 7, 3, -1, 1),
    Sketcher.Constraint("Symmetric", 1, 2, 10, 2, -2),
    Sketcher.Constraint("Radius", 3, Q("5.5 mm")),
    Sketcher.Constraint("DistanceY", 4, 2, 4, 1, Q("49 mm")),
    Sketcher.Constraint("Radius", 13, Q("7.01 mm")),
    Sketcher.Constraint("DistanceX", 6, 1, 6, 2, Q("47.3 mm")),
    Sketcher.Constraint("DistanceX", 1, 2, 10, 2, Q("17 mm")),
])
sketch6.setExpression("Constraints[41]", "Params.sketch6_radius")
sketch6.setExpression("Constraints[42]", "Params.sketch6_height")
sketch6.setExpression("Constraints[43]", "Params.sketch6_radius2")
sketch6.setExpression("Constraints[44]", "Params.sketch6_width")
pocket4 = body.newObject("PartDesign::Pocket", "Pocket003")
pocket4.Profile = sketch6
pocket4.setExpression("Length", "Params.pocket4_length")
pocket4.Reversed = True

doc.recompute()
